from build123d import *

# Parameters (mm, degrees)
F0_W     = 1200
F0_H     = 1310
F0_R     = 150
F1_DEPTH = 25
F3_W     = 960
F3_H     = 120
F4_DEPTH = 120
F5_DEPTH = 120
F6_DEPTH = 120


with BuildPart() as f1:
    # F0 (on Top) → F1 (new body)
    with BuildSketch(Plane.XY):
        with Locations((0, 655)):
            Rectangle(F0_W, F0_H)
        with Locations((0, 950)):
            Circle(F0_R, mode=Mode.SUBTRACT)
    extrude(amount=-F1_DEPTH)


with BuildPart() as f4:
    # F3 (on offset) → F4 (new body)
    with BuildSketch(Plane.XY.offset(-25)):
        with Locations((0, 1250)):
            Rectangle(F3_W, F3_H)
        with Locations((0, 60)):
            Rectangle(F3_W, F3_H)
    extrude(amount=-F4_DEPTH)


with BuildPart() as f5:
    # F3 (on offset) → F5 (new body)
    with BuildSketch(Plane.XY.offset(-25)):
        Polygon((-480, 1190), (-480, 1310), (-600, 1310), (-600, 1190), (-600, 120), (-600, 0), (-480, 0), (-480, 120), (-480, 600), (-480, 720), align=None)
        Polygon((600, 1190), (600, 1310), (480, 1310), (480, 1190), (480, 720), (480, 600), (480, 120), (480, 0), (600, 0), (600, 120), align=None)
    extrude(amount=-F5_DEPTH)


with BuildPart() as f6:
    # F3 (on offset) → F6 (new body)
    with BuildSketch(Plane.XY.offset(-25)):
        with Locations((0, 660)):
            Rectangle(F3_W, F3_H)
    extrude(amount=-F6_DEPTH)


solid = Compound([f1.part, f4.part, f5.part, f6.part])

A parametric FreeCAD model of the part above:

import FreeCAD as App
import Part
import Sketcher

V = App.Vector


def add_polygon(sketch, points):
    """Adds a closed chain of lines whose ends are joined by coincident constraints."""
    first, n = sketch.GeometryCount, len(points)
    for a, b in zip(points, points[1:] + points[:1]):
        sketch.addGeometry(Part.LineSegment(App.Vector(*a, 0), App.Vector(*b, 0)), False)
    for i in range(n):
        sketch.addConstraint(Sketcher.Constraint("Coincident", first + i, 2, first + (i + 1) % n, 1))

doc = App.newDocument("Part")
body = doc.addObject("PartDesign::Body", "Body")

sketch1 = doc.addObject("Sketcher::SketchObject", "Sketch")
body.addObject(sketch1)
sketch1.AttachmentSupport = (doc.XY_Plane, [""])
sketch1.MapMode = "FlatFace"
add_polygon(sketch1, [(-600, 1310), (-600, 0), (600, 0), (600, 1310)])
sketch1.addGeometry(Part.Circle(V(0, 950, 0), V(0, 0, 1), 150), False)
sketch1.addConstraint(Sketcher.Constraint("Vertical", 0))
sketch1.addConstraint(Sketcher.Constraint("Horizontal", 1))
sketch1.addConstraint(Sketcher.Constraint("Vertical", 2))
sketch1.addConstraint(Sketcher.Constraint("Horizontal", 3))
sketch1.addConstraint(Sketcher.Constraint("Symmetric", 0, 2, 1, 2, -1, 1))
sketch1.addConstraint(Sketcher.Constraint("PointOnObject", 4, 3, -2))
sketch1.addConstraint(Sketcher.Constraint("Diameter", 4, 300.0))
sketch1.addConstraint(Sketcher.Constraint("DistanceX", 1, 1, 1, 2, 1200.0))
sketch1.addConstraint(Sketcher.Constraint("DistanceY", 0, 2, 0, 1, 1310.0))
sketch1.addConstraint(Sketcher.Constraint("DistanceY", -1, 1, 4, 3, 950.0))
pad1 = doc.addObject("PartDesign::Pad", "Pad")
body.addObject(pad1)
pad1.Profile = sketch1
pad1.Length = 25
pad1.Reversed = True
body2 = doc.addObject("PartDesign::Body", "Body001")
body2.AllowCompound = True

sketch2 = doc.addObject("Sketcher::SketchObject", "Sketch001")
body2.addObject(sketch2)
sketch2.AttachmentSupport = (doc.getObject("XY_Plane001"), [""])
sketch2.MapMode = "FlatFace"
sketch2.AttachmentOffset = App.Placement(V(0, 0, -25), App.Rotation())
add_polygon(sketch2, [(-480, 1310), (-480, 1190), (480, 1190), (480, 1310)])
add_polygon(sketch2, [(-480, 120), (-480, 0), (480, 0), (480, 120)])
sketch2.addConstraint(Sketcher.Constraint("Vertical", 0))
sketch2.addConstraint(Sketcher.Constraint("Horizontal", 1))
sketch2.addConstraint(Sketcher.Constraint("Vertical", 2))
sketch2.addConstraint(Sketcher.Constraint("Horizontal", 3))
sketch2.addConstraint(Sketcher.Constraint("Vertical", 4))
sketch2.addConstraint(Sketcher.Constraint("Horizontal", 5))
sketch2.addConstraint(Sketcher.Constraint("Vertical", 6))
sketch2.addConstraint(Sketcher.Constraint("Horizontal", 7))
sketch2.addConstraint(Sketcher.Constraint("Symmetric", 4, 2, 5, 2, -1, 1))
sketch2.addConstraint(Sketcher.Constraint("Vertical", 3, 2, 4, 2))
sketch2.addConstraint(Sketcher.Constraint("Vertical", 2, 2, 5, 2))
sketch2.addConstraint(Sketcher.Constraint("Equal", 2, 4))
sketch2.addConstraint(Sketcher.Constraint("DistanceX", 1, 1, 1, 2, 960.0))
sketch2.addConstraint(Sketcher.Constraint("DistanceY", 0, 2, 0, 1, 120.0))
sketch2.addConstraint(Sketcher.Constraint("DistanceY", -1, 1, 0, 2, 1190.0))
pad2 = doc.addObject("PartDesign::Pad", "Pad001")
body2.addObject(pad2)
pad2.Profile = sketch2
pad2.Length = 120
pad2.Reversed = True
body3 = doc.addObject("PartDesign::Body", "Body002")
body3.AllowCompound = True

sketch3 = doc.addObject("Sketcher::SketchObject", "Sketch002")
body3.addObject(sketch3)
sketch3.AttachmentSupport = (doc.getObject("XY_Plane002"), [""])
sketch3.MapMode = "FlatFace"
sketch3.AttachmentOffset = App.Placement(V(0, 0, -25), App.Rotation())
add_polygon(sketch3, [(-480, 1310), (-600, 1310), (-600, 0), (-480, 0)])
add_polygon(sketch3, [(600, 1310), (480, 1310), (480, 0), (600, 0)])
sketch3.addConstraint(Sketcher.Constraint("Horizontal", 0))
sketch3.addConstraint(Sketcher.Constraint("Vertical", 1))
sketch3.addConstraint(Sketcher.Constraint("Horizontal", 2))
sketch3.addConstraint(Sketcher.Constraint("Vertical", 3))
sketch3.addConstraint(Sketcher.Constraint("Horizontal", 4))
sketch3.addConstraint(Sketcher.Constraint("Vertical", 5))
sketch3.addConstraint(Sketcher.Constraint("Horizontal", 6))
sketch3.addConstraint(Sketcher.Constraint("Vertical", 7))
sketch3.addConstraint(Sketcher.Constraint("Symmetric", 2, 2, 5, 2, -1, 1))
sketch3.addConstraint(Sketcher.Constraint("Symmetric", 1, 2, 6, 2, -2))
sketch3.addConstraint(Sketcher.Constraint("Horizontal", 3, 2, 4, 2))
sketch3.addConstraint(Sketcher.Constraint("DistanceX", 0, 2, 0, 1, 120.0))
sketch3.addConstraint(Sketcher.Constraint("DistanceY", 1, 2, 1, 1, 1310.0))
sketch3.addConstraint(Sketcher.Constraint("DistanceX", 0, 2, -1, 1, 600.0))
pad3 = doc.addObject("PartDesign::Pad", "Pad002")
body3.addObject(pad3)
pad3.Profile = sketch3
pad3.Length = 120
pad3.Reversed = True
body4 = doc.addObject("PartDesign::Body", "Body003")

sketch4 = doc.addObject("Sketcher::SketchObject", "Sketch003")
body4.addObject(sketch4)
sketch4.AttachmentSupport = (doc.getObject("XY_Plane003"), [""])
sketch4.MapMode = "FlatFace"
sketch4.AttachmentOffset = App.Placement(V(0, 0, -25), App.Rotation())
add_polygon(sketch4, [(-480, 720), (-480, 600), (480, 600), (480, 720)])
sketch4.addConstraint(Sketcher.Constraint("Vertical", 0))
sketch4.addConstraint(Sketcher.Constraint("Horizontal", 1))
sketch4.addConstraint(Sketcher.Constraint("Vertical", 2))
sketch4.addConstraint(Sketcher.Constraint("Horizontal", 3))
sketch4.addConstraint(Sketcher.Constraint("DistanceX", 1, 1, 1, 2, 960.0))
sketch4.addConstraint(Sketcher.Constraint("DistanceY", 0, 2, 0, 1, 120.0))
sketch4.addConstraint(Sketcher.Constraint("DistanceX", 0, 2, -1, 1, 480.0))
sketch4.addConstraint(Sketcher.Constraint("DistanceY", -1, 1, 0, 2, 600.0))
pad4 = doc.addObject("PartDesign::Pad", "Pad003")
body4.addObject(pad4)
pad4.Profile = sketch4
pad4.Length = 120
pad4.Reversed = True

doc.recompute()
